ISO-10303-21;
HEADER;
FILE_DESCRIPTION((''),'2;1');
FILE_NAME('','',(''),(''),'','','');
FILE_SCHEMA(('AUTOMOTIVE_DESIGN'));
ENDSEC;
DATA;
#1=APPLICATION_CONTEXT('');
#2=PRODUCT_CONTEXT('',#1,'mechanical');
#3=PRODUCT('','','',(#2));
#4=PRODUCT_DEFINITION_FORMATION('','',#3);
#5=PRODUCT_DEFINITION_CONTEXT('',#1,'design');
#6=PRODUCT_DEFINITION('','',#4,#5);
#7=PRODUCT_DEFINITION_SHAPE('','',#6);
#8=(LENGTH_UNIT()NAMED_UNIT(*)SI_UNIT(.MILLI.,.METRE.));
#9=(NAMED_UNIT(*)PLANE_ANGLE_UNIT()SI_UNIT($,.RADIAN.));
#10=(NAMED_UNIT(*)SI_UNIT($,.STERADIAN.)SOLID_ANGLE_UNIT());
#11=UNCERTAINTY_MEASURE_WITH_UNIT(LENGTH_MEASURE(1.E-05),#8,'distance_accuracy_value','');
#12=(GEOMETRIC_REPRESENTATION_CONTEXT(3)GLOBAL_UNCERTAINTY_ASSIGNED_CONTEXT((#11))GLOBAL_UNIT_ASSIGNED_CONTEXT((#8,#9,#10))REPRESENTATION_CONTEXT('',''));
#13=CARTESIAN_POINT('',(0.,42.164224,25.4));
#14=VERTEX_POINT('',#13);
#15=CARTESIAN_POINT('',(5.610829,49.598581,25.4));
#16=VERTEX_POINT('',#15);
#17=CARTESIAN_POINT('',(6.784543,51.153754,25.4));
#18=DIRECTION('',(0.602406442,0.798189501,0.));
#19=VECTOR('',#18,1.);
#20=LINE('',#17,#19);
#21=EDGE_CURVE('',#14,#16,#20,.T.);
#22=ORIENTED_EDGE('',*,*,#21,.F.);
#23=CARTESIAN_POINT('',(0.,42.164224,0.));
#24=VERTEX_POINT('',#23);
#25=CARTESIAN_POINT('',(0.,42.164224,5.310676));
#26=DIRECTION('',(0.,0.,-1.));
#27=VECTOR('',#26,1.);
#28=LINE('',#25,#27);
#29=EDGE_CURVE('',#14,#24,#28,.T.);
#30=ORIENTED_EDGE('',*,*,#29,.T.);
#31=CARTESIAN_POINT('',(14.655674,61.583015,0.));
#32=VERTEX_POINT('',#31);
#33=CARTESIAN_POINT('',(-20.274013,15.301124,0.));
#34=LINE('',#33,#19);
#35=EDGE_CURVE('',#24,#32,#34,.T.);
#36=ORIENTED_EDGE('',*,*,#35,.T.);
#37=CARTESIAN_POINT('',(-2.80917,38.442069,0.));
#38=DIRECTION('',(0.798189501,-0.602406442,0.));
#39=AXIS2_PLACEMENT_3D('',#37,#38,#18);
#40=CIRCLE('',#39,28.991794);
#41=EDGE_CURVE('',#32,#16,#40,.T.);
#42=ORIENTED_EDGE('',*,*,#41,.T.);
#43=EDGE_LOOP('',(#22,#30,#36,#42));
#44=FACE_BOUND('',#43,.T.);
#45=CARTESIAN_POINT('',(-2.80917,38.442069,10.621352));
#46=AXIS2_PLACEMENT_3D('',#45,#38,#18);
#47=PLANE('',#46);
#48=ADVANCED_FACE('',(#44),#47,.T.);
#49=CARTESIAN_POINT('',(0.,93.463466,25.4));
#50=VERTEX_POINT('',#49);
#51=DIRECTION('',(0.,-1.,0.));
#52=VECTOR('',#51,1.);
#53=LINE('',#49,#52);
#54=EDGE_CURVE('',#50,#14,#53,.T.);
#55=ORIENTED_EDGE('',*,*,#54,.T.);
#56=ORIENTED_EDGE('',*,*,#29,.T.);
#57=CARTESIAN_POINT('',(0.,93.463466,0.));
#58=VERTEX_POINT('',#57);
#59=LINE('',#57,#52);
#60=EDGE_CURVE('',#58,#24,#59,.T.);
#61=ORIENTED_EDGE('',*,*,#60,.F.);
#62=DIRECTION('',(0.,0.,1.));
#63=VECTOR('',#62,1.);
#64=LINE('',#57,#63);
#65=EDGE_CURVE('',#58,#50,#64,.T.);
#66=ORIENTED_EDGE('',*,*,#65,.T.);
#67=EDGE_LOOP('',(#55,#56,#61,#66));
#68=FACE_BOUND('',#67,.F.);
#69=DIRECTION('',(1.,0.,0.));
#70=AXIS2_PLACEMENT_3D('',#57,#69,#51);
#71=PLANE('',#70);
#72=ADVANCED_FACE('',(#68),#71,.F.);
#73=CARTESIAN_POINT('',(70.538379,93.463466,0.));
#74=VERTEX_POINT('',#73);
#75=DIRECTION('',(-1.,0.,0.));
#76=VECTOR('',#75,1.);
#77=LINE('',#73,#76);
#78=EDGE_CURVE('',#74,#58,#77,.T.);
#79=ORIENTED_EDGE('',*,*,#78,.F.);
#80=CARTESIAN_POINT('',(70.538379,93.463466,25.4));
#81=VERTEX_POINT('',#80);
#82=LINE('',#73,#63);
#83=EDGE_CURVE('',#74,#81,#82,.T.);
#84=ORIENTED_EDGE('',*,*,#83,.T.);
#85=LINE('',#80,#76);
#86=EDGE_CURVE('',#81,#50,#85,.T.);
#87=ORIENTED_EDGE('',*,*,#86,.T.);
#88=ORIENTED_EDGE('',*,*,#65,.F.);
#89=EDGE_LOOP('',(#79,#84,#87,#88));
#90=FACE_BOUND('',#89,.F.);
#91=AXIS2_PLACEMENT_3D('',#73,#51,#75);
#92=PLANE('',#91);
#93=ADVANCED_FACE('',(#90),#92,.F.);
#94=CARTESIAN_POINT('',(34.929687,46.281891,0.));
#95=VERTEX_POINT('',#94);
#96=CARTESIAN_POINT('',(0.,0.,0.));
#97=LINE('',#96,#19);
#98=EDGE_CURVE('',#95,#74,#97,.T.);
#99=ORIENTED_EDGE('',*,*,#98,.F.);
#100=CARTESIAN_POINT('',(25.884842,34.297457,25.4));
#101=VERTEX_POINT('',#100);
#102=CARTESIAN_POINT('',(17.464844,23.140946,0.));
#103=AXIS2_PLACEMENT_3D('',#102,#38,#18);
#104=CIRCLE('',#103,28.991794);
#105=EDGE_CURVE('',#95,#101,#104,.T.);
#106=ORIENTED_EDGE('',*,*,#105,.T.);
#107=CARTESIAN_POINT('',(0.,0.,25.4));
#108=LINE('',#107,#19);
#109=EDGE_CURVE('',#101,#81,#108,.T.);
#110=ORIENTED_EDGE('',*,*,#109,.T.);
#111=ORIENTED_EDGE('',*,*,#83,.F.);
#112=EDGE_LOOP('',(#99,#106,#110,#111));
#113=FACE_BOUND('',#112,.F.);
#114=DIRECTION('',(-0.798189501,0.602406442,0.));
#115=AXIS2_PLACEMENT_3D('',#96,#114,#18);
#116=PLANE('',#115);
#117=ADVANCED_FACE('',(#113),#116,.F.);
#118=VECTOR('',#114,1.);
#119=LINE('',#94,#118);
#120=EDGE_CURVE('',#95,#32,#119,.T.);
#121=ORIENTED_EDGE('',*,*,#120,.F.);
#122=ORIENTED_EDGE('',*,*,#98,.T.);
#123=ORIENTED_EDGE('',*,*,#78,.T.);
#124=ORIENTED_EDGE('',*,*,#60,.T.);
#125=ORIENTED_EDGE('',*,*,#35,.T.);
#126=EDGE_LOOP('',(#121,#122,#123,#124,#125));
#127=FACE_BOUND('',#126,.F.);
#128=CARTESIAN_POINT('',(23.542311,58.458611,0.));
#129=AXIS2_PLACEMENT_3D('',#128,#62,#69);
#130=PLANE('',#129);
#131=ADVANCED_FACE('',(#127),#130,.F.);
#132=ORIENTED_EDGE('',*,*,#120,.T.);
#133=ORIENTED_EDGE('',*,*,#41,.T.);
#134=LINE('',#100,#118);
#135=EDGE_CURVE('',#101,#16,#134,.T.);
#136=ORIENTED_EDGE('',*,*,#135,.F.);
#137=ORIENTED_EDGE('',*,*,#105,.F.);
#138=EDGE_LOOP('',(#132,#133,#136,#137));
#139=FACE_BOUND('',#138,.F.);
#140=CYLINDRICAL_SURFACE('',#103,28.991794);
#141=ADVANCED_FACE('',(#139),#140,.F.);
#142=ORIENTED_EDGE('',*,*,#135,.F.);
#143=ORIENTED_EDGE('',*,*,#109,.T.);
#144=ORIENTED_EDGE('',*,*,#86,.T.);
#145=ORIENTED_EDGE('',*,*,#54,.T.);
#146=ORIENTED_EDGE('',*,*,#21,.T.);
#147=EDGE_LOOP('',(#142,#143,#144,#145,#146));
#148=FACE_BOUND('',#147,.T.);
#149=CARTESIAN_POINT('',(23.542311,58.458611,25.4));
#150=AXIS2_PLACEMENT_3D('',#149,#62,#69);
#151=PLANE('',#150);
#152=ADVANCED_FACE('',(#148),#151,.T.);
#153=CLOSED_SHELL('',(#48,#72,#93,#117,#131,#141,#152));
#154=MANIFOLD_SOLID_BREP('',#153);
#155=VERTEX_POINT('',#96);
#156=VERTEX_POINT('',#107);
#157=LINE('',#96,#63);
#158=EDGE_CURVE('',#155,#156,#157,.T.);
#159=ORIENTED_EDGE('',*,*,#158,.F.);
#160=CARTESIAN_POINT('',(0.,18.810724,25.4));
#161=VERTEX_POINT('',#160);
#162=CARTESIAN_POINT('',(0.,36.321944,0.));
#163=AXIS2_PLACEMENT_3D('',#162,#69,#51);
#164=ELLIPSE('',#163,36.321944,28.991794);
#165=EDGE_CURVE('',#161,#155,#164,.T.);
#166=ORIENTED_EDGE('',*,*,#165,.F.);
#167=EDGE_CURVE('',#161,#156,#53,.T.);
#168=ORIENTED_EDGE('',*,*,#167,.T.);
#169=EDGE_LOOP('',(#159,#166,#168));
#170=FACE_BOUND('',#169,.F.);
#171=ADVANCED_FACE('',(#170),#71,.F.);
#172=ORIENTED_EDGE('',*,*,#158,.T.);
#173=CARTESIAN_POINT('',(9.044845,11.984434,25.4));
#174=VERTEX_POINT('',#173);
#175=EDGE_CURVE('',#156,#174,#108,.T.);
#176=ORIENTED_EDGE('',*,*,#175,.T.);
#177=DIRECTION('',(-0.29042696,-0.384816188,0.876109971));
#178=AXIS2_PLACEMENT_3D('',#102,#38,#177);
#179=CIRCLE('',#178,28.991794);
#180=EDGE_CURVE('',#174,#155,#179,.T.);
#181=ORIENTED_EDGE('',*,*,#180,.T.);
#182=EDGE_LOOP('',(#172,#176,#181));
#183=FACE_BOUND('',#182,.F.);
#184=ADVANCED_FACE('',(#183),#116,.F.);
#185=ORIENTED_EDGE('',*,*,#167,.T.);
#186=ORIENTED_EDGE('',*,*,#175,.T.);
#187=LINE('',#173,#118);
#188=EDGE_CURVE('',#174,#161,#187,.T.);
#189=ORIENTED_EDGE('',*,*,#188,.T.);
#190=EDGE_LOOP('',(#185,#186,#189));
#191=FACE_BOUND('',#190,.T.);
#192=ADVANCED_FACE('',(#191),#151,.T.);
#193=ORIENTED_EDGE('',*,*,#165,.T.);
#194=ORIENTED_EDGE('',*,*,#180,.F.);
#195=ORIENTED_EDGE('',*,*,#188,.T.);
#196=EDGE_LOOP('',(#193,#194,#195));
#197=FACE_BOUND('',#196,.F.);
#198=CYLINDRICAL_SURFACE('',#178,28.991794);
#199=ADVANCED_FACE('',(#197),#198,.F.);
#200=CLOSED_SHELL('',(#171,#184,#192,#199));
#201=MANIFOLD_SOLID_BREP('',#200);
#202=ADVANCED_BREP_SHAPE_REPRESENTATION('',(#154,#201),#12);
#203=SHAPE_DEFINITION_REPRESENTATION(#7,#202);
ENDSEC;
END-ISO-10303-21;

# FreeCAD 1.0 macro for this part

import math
import FreeCAD as App
import Part
import Sketcher

V = App.Vector
Q = App.Units.Quantity


def add_polygon(sketch, points):
    """Adds a closed chain of lines whose ends are joined by coincident constraints."""
    first, n = sketch.GeometryCount, len(points)
    for a, b in zip(points, points[1:] + points[:1]):
        sketch.addGeometry(Part.LineSegment(App.Vector(*a, 0), App.Vector(*b, 0)), False)
    for i in range(n):
        sketch.addConstraint(Sketcher.Constraint("Coincident", first + i, 2, first + (i + 1) % n, 1))

doc = App.newDocument("Part")
body = doc.addObject("PartDesign::Body", "Body")
body.AllowCompound = True

sketch1 = doc.addObject("Sketcher::SketchObject", "Sketch")
body.addObject(sketch1)
sketch1.AttachmentSupport = (doc.XY_Plane, [""])
sketch1.MapMode = "FlatFace"
add_polygon(sketch1, [(0, 93.463466), (0, 0), (70.538379, 93.463466)])
sketch1.addConstraint(Sketcher.Constraint("Vertical", 0))
sketch1.addConstraint(Sketcher.Constraint("Horizontal", 2))
sketch1.addConstraint(Sketcher.Constraint("Coincident", 0, 2, -1, 1))
sketch1.addConstraint(Sketcher.Constraint("DistanceX", 2, 2, 2, 1, 70.538379))
sketch1.addConstraint(Sketcher.Constraint("Distance", 1, 117.094331))
pad1 = doc.addObject("PartDesign::Pad", "Pad")
body.addObject(pad1)
pad1.Profile = sketch1
pad1.Length = Q("1 in")

sketch2 = doc.addObject("Sketcher::SketchObject", "Sketch001")
body.addObject(sketch2)
sketch2.Placement = App.Placement(V(0, 0, 0), App.Rotation(V(0.602406442, 0.798189501, 0), V(0, 0, 1.000000001), V(0.798189501, -0.602406442, 0), "ZXY"))
sketch2.addGeometry(Part.ArcOfCircle(Part.Circle(V(28.991794, 0, 0), V(0, 0, 1), 28.991794), math.radians(0), math.radians(61.176614)), False)
sketch2.addGeometry(Part.ArcOfCircle(Part.Circle(V(28.991794, 0, 0), V(0, 0, 1), 28.991794), math.radians(61.176614), math.radians(118.823386)), False)
sketch2.addGeometry(Part.ArcOfCircle(Part.Circle(V(28.991794, 0, 0), V(0, 0, 1), 28.991794), math.radians(118.823386), math.radians(180)), False)
sketch2.addGeometry(Part.LineSegment(V(0, 0, 0), V(57.983588, 0, 0)), False)
sketch2.addConstraint(Sketcher.Constraint("Tangent", 0, 2, 1, 1))
sketch2.addConstraint(Sketcher.Constraint("Tangent", 1, 2, 2, 1))
sketch2.addConstraint(Sketcher.Constraint("Coincident", 2, 2, 3, 1))
sketch2.addConstraint(Sketcher.Constraint("Coincident", 3, 2, 0, 1))
sketch2.addConstraint(Sketcher.Constraint("Horizontal", 3))
sketch2.addConstraint(Sketcher.Constraint("Coincident", 2, 2, -1, 1))
sketch2.addConstraint(Sketcher.Constraint("Coincident", 2, 3, 0, 3))
sketch2.addConstraint(Sketcher.Constraint("PointOnObject", 0, 3, -1))
sketch2.addConstraint(Sketcher.Constraint("Horizontal", 0, 2, 1, 2))
sketch2.addConstraint(Sketcher.Constraint("DistanceY", -1, 1, 0, 2, Q("1 in")))
sketch2.addConstraint(Sketcher.Constraint("Radius", 0, 28.991794))
pocket1 = doc.addObject("PartDesign::Pocket", "Pocket")
body.addObject(pocket1)
pocket1.Profile = sketch2
pocket1.Length = Q("1 in")

doc.recompute()
